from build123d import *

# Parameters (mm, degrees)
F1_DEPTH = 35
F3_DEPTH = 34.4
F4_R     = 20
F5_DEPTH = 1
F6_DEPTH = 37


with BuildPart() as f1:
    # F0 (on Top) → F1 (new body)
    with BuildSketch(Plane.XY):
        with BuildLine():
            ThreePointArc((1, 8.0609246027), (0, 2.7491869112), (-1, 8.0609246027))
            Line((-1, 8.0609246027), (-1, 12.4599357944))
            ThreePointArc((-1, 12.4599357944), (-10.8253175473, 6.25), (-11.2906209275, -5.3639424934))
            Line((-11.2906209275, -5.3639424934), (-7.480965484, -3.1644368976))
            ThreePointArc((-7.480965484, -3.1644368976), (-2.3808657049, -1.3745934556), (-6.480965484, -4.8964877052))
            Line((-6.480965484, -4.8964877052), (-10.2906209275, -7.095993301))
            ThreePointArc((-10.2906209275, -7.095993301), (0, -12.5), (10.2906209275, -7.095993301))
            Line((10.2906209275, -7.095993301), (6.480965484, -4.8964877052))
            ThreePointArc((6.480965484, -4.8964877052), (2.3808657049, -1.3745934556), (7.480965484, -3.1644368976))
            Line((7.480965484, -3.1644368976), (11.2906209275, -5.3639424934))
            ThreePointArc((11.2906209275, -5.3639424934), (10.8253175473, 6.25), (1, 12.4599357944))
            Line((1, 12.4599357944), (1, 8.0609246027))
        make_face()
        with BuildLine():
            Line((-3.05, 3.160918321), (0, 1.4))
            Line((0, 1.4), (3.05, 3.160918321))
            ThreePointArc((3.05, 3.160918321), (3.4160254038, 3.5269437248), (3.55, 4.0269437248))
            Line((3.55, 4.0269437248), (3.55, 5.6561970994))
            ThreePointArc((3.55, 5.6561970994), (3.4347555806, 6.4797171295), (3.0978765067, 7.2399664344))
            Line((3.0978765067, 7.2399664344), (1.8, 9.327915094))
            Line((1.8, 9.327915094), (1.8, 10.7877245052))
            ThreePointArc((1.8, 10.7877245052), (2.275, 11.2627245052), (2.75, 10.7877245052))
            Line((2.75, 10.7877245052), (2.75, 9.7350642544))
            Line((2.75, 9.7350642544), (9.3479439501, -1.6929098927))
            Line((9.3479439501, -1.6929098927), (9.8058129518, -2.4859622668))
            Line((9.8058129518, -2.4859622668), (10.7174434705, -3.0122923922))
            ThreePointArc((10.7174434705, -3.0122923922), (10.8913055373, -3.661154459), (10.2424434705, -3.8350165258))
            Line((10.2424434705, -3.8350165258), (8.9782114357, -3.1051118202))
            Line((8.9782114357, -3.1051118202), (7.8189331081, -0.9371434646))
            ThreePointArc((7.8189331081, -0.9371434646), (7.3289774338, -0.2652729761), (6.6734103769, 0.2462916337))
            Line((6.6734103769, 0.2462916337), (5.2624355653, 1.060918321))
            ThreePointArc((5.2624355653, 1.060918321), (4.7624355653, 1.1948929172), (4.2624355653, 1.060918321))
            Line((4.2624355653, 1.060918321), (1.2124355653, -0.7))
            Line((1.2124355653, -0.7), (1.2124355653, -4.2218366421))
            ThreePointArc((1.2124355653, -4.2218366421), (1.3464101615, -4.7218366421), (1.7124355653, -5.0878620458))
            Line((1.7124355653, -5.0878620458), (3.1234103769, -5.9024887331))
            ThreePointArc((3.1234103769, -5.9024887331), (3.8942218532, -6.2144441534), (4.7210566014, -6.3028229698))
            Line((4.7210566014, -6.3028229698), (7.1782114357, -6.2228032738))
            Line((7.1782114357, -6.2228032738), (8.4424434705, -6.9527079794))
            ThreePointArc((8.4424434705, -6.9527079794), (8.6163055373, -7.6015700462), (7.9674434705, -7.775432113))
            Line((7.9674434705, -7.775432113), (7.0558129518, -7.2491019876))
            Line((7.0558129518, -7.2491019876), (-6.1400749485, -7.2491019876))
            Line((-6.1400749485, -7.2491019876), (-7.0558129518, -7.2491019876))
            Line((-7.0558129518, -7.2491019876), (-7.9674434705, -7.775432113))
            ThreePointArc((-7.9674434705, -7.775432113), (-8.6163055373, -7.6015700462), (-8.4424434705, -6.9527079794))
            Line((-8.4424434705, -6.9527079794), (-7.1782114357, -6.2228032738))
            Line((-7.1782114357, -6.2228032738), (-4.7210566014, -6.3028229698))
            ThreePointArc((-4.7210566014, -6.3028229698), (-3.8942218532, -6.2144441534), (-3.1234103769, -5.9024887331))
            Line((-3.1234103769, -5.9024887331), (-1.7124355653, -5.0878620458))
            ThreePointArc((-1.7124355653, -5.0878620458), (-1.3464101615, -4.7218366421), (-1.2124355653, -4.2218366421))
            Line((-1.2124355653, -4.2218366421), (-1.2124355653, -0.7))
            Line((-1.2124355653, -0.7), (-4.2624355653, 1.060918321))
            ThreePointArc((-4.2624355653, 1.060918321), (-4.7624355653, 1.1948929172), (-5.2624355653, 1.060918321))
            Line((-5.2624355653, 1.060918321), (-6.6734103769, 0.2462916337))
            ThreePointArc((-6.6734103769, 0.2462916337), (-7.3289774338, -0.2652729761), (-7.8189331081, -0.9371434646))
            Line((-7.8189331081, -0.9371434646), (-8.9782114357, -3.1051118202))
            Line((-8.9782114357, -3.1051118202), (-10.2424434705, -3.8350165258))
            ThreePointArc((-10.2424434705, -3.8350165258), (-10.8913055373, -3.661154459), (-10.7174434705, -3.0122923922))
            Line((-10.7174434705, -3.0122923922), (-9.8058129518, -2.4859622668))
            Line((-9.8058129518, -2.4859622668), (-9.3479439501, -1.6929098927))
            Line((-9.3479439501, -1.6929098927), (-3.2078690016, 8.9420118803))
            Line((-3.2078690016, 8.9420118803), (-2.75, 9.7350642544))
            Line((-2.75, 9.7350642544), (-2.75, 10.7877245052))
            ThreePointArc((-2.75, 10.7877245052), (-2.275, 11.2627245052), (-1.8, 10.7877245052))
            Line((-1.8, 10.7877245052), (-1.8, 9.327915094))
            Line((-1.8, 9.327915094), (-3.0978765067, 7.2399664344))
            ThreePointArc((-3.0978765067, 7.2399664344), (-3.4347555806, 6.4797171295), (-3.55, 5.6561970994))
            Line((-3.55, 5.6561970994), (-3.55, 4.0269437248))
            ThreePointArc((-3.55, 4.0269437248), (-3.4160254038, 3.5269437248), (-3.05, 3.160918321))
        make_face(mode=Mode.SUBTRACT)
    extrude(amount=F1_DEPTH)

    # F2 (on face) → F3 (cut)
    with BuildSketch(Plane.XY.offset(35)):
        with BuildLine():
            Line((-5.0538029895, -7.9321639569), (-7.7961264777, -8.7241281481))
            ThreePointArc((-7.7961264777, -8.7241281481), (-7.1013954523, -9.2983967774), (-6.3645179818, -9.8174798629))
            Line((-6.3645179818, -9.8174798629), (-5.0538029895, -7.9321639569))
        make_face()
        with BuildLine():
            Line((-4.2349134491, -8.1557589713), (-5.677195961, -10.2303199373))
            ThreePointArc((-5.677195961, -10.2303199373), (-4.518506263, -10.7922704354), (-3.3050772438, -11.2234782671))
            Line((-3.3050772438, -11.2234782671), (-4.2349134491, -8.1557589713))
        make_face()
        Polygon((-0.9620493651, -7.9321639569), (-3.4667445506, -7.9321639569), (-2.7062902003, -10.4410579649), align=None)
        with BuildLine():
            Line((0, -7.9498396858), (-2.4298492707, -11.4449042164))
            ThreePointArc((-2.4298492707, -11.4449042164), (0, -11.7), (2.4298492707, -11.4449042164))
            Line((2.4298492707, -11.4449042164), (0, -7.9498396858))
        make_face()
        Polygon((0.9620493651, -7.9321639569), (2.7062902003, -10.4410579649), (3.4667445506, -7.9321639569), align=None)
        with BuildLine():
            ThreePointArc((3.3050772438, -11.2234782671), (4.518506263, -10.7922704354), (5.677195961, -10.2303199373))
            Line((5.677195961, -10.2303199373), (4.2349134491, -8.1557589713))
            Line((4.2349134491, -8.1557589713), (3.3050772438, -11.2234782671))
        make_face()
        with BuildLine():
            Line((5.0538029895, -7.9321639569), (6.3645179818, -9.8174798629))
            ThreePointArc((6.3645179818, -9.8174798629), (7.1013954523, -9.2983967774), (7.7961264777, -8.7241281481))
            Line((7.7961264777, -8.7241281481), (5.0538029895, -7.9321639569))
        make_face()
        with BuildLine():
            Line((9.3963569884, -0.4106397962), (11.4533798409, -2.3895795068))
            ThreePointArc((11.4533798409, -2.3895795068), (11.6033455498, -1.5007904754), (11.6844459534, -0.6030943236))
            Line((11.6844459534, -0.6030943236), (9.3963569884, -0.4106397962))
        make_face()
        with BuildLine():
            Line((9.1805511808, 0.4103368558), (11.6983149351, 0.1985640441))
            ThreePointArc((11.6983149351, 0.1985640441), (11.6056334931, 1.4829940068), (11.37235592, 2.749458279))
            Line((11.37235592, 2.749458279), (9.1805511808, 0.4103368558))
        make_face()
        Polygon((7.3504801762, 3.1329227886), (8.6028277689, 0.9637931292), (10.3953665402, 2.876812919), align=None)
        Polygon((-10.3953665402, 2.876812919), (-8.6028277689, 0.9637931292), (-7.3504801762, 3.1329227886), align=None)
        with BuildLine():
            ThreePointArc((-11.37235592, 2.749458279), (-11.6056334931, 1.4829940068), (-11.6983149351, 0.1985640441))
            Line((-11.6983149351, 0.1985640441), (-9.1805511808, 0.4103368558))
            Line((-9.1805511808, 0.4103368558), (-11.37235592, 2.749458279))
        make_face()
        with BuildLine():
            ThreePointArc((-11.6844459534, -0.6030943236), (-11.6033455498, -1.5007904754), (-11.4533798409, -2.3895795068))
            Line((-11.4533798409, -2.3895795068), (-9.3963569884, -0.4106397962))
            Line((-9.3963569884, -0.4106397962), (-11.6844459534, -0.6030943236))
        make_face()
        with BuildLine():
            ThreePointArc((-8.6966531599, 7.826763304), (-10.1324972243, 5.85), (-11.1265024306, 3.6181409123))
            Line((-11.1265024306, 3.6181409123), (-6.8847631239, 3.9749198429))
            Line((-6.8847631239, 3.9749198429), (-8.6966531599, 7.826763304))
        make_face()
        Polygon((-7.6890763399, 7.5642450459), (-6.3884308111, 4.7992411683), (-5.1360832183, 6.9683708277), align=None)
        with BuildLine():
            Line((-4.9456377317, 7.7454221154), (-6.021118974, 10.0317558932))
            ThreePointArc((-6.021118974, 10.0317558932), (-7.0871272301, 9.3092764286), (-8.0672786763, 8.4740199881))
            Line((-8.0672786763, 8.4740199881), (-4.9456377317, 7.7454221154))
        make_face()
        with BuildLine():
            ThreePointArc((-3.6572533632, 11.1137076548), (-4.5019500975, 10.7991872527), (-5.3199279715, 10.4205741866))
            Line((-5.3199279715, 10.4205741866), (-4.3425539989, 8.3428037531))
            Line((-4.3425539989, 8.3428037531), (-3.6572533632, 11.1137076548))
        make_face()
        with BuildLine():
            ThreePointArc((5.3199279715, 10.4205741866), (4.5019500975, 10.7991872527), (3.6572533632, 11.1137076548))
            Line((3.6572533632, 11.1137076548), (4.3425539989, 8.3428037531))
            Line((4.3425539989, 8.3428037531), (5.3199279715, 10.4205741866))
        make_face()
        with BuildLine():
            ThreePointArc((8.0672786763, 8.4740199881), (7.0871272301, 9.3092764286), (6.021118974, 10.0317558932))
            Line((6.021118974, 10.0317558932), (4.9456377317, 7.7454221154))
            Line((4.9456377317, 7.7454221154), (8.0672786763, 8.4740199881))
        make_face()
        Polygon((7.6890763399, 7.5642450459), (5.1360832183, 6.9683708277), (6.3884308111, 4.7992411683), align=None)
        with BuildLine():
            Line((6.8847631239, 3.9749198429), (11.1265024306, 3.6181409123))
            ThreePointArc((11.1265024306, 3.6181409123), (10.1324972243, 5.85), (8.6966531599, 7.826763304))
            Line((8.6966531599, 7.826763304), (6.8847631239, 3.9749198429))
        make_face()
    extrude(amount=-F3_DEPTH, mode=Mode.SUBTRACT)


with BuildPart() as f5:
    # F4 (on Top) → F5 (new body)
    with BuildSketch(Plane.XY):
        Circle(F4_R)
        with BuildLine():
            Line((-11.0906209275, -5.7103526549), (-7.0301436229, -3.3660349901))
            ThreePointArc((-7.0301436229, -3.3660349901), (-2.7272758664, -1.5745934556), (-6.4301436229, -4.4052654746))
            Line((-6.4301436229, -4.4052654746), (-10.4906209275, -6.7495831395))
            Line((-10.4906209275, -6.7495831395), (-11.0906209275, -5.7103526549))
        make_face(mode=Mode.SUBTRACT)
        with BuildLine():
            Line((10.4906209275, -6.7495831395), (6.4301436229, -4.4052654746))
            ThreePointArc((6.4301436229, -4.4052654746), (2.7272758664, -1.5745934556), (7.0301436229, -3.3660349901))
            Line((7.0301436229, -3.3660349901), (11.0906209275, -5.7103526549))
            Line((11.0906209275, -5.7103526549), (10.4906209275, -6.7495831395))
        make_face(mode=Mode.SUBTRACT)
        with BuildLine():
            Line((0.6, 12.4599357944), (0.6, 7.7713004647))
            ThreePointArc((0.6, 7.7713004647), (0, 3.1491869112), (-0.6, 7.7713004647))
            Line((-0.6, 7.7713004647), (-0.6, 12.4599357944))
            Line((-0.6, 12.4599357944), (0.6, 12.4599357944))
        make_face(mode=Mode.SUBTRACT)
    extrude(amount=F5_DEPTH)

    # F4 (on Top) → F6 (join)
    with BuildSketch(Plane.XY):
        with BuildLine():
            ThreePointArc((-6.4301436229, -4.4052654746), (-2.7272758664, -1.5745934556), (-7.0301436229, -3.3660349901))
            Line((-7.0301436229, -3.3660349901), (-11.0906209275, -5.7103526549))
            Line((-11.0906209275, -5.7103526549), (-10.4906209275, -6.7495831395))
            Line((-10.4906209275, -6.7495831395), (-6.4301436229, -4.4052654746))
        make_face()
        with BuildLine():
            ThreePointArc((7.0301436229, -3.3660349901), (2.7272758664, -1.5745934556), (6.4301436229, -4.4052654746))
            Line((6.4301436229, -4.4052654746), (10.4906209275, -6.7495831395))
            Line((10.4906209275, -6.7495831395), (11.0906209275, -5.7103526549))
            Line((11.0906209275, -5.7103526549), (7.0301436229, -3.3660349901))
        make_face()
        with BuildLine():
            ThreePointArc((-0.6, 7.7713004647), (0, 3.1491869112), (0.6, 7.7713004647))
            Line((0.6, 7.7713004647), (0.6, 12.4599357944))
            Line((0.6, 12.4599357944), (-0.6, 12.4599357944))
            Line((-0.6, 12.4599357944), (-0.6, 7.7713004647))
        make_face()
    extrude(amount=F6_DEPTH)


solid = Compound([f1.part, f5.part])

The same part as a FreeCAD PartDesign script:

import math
import FreeCAD as App
import Part
import Sketcher
from FreeCAD import Vector
Q = App.Units.Quantity


def add_polygon(sketch, points):
    """Adds a closed chain of lines whose ends are joined by coincident constraints."""
    first, n = sketch.GeometryCount, len(points)
    for a, b in zip(points, points[1:] + points[:1]):
        sketch.addGeometry(Part.LineSegment(App.Vector(*a, 0), App.Vector(*b, 0)), False)
    for i in range(n):
        sketch.addConstraint(Sketcher.Constraint("Coincident", first + i, 2, first + (i + 1) % n, 1))

doc = App.newDocument("Part")
body = doc.addObject("PartDesign::Body", "Body")

# Sketch on XY plane
sketch1 = body.newObject("Sketcher::SketchObject", "Sketch")
sketch1.AttachmentSupport = (doc.getObject("XY_Plane"), [""])
sketch1.MapMode = "FlatFace"
sketch1.addGeometry([
    Part.ArcOfCircle(Part.Circle(Vector(0, 5.499187, 0), Vector(0, 0, 1), 2.75), math.radians(111.323686), math.radians(428.676314)),  # 0
    Part.LineSegment(Vector(-1, 8.060925, 0), Vector(-1, 12.459936, 0)),  # 1
    Part.ArcOfCircle(Part.Circle(Vector(0, 0, 0), Vector(0, 0, 1), 12.5), math.radians(94.588566), math.radians(205.411434)),  # 2
    Part.LineSegment(Vector(-11.290621, -5.363942, 0), Vector(-7.480965, -3.164437, 0)),  # 3
    Part.ArcOfCircle(Part.Circle(Vector(-4.762436, -2.749593, 0), Vector(0, 0, 1), 2.75), math.radians(-128.676314), math.radians(188.676314)),  # 4
    Part.LineSegment(Vector(-6.480965, -4.896488, 0), Vector(-10.290621, -7.095993, 0)),  # 5
    Part.ArcOfCircle(Part.Circle(Vector(0, 0, 0), Vector(0, 0, 1), 12.5), math.radians(-145.411434), math.radians(-34.588566)),  # 6
    Part.LineSegment(Vector(10.290621, -7.095993, 0), Vector(6.480965, -4.896488, 0)),  # 7
    Part.ArcOfCircle(Part.Circle(Vector(4.762436, -2.749593, 0), Vector(0, 0, 1), 2.75), math.radians(-8.676314), math.radians(308.676314)),  # 8
    Part.LineSegment(Vector(7.480965, -3.164437, 0), Vector(11.290621, -5.363942, 0)),  # 9
    Part.ArcOfCircle(Part.Circle(Vector(0, 0, 0), Vector(0, 0, 1), 12.5), math.radians(-25.411434), math.radians(85.411434)),  # 10
    Part.LineSegment(Vector(1, 12.459936, 0), Vector(1, 8.060925, 0)),  # 11
    Part.ArcOfCircle(Part.Circle(Vector(-2.55, 4.026944, 0), Vector(0, 0, 1), 1), math.radians(180), math.radians(240)),  # 12
    Part.LineSegment(Vector(-3.05, 3.160918, 0), Vector(0, 1.4, 0)),  # 13
    Part.LineSegment(Vector(0, 1.4, 0), Vector(3.05, 3.160918, 0)),  # 14
    Part.ArcOfCircle(Part.Circle(Vector(2.55, 4.026944, 0), Vector(0, 0, 1), 1), math.radians(-60), math.radians(0)),  # 15
    Part.LineSegment(Vector(3.55, 4.026944, 0), Vector(3.55, 5.656197, 0)),  # 16
    Part.ArcOfCircle(Part.Circle(Vector(0.55, 5.656197, 0), Vector(0, 0, 1), 3), math.radians(0), math.radians(31.865235)),  # 17
    Part.LineSegment(Vector(3.097877, 7.239966, 0), Vector(1.8, 9.327915, 0)),  # 18
    Part.LineSegment(Vector(1.8, 9.327915, 0), Vector(1.8, 10.787725, 0)),  # 19
    Part.ArcOfCircle(Part.Circle(Vector(2.275, 10.787725, 0), Vector(0, 0, 1), 0.475), math.radians(0), math.radians(180)),  # 20
    Part.LineSegment(Vector(2.75, 10.787725, 0), Vector(2.75, 9.735064, 0)),  # 21
    Part.LineSegment(Vector(2.75, 9.735064, 0), Vector(9.347944, -1.69291, 0)),  # 22
    Part.LineSegment(Vector(9.347944, -1.69291, 0), Vector(9.805813, -2.485962, 0)),  # 23
    Part.LineSegment(Vector(9.805813, -2.485962, 0), Vector(10.717443, -3.012292, 0)),  # 24
    Part.ArcOfCircle(Part.Circle(Vector(10.479943, -3.423654, 0), Vector(0, 0, 1), 0.475), math.radians(-120), math.radians(60)),  # 25
    Part.LineSegment(Vector(10.242443, -3.835017, 0), Vector(8.978211, -3.105112, 0)),  # 26
    Part.LineSegment(Vector(8.978211, -3.105112, 0), Vector(7.818933, -0.937143, 0)),  # 27
    Part.ArcOfCircle(Part.Circle(Vector(5.17341, -2.351785, 0), Vector(0, 0, 1), 3), math.radians(28.134765), math.radians(60)),  # 28
    Part.LineSegment(Vector(6.67341, 0.246292, 0), Vector(5.262436, 1.060918, 0)),  # 29
    Part.ArcOfCircle(Part.Circle(Vector(4.762436, 0.194893, 0), Vector(0, 0, 1), 1), math.radians(60), math.radians(120)),  # 30
    Part.LineSegment(Vector(4.262436, 1.060918, 0), Vector(1.212436, -0.7, 0)),  # 31
    Part.LineSegment(Vector(1.212436, -0.7, 0), Vector(1.212436, -4.221837, 0)),  # 32
    Part.ArcOfCircle(Part.Circle(Vector(2.212436, -4.221837, 0), Vector(0, 0, 1), 1), math.radians(180), math.radians(240)),  # 33
    Part.LineSegment(Vector(1.712436, -5.087862, 0), Vector(3.12341, -5.902489, 0)),  # 34
    Part.ArcOfCircle(Part.Circle(Vector(4.62341, -3.304413, 0), Vector(0, 0, 1), 3), math.radians(-120), math.radians(-88.134765)),  # 35
    Part.LineSegment(Vector(4.721057, -6.302823, 0), Vector(7.178211, -6.222803, 0)),  # 36
    Part.LineSegment(Vector(7.178211, -6.222803, 0), Vector(8.442443, -6.952708, 0)),  # 37
    Part.ArcOfCircle(Part.Circle(Vector(8.204943, -7.36407, 0), Vector(0, 0, 1), 0.475), math.radians(-120), math.radians(60)),  # 38
    Part.LineSegment(Vector(7.967443, -7.775432, 0), Vector(7.055813, -7.249102, 0)),  # 39
    Part.LineSegment(Vector(7.055813, -7.249102, 0), Vector(-7.055813, -7.249102, 0)),  # 40
    Part.LineSegment(Vector(-7.055813, -7.249102, 0), Vector(-7.967443, -7.775432, 0)),  # 41
    Part.ArcOfCircle(Part.Circle(Vector(-8.204943, -7.36407, 0), Vector(0, 0, 1), 0.475), math.radians(120), math.radians(300)),  # 42
    Part.LineSegment(Vector(-8.442443, -6.952708, 0), Vector(-7.178211, -6.222803, 0)),  # 43
    Part.LineSegment(Vector(-7.178211, -6.222803, 0), Vector(-4.721057, -6.302823, 0)),  # 44
    Part.ArcOfCircle(Part.Circle(Vector(-4.62341, -3.304413, 0), Vector(0, 0, 1), 3), math.radians(-91.865235), math.radians(-60)),  # 45
    Part.LineSegment(Vector(-3.12341, -5.902489, 0), Vector(-1.712436, -5.087862, 0)),  # 46
    Part.ArcOfCircle(Part.Circle(Vector(-2.212436, -4.221837, 0), Vector(0, 0, 1), 1), math.radians(-60), math.radians(0)),  # 47
    Part.LineSegment(Vector(-1.212436, -4.221837, 0), Vector(-1.212436, -0.7, 0)),  # 48
    Part.LineSegment(Vector(-1.212436, -0.7, 0), Vector(-4.262436, 1.060918, 0)),  # 49
    Part.ArcOfCircle(Part.Circle(Vector(-4.762436, 0.194893, 0), Vector(0, 0, 1), 1), math.radians(60), math.radians(120)),  # 50
    Part.LineSegment(Vector(-5.262436, 1.060918, 0), Vector(-6.67341, 0.246292, 0)),  # 51
    Part.ArcOfCircle(Part.Circle(Vector(-5.17341, -2.351785, 0), Vector(0, 0, 1), 3), math.radians(120), math.radians(151.865235)),  # 52
    Part.LineSegment(Vector(-7.818933, -0.937143, 0), Vector(-8.978211, -3.105112, 0)),  # 53
    Part.LineSegment(Vector(-8.978211, -3.105112, 0), Vector(-10.242443, -3.835017, 0)),  # 54
    Part.ArcOfCircle(Part.Circle(Vector(-10.479943, -3.423654, 0), Vector(0, 0, 1), 0.475), math.radians(120), math.radians(300)),  # 55
    Part.LineSegment(Vector(-10.717443, -3.012292, 0), Vector(-9.805813, -2.485962, 0)),  # 56
    Part.LineSegment(Vector(-9.805813, -2.485962, 0), Vector(-9.347944, -1.69291, 0)),  # 57
    Part.LineSegment(Vector(-9.347944, -1.69291, 0), Vector(-3.207869, 8.942012, 0)),  # 58
    Part.LineSegment(Vector(-3.207869, 8.942012, 0), Vector(-2.75, 9.735064, 0)),  # 59
    Part.LineSegment(Vector(-2.75, 9.735064, 0), Vector(-2.75, 10.787725, 0)),  # 60
    Part.ArcOfCircle(Part.Circle(Vector(-2.275, 10.787725, 0), Vector(0, 0, 1), 0.475), math.radians(0), math.radians(180)),  # 61
    Part.LineSegment(Vector(-1.8, 10.787725, 0), Vector(-1.8, 9.327915, 0)),  # 62
    Part.LineSegment(Vector(-1.8, 9.327915, 0), Vector(-3.097877, 7.239966, 0)),  # 63
    Part.ArcOfCircle(Part.Circle(Vector(-0.55, 5.656197, 0), Vector(0, 0, 1), 3), math.radians(148.134765), math.radians(180)),  # 64
    Part.LineSegment(Vector(-3.55, 5.656197, 0), Vector(-3.55, 4.026944, 0)),  # 65
], False)
sketch1.addConstraint([
    Sketcher.Constraint("Coincident", 0, 1, 1, 1),
    Sketcher.Constraint("Coincident", 1, 2, 2, 1),
    Sketcher.Constraint("Coincident", 2, 2, 3, 1),
    Sketcher.Constraint("Coincident", 3, 2, 4, 2),
    Sketcher.Constraint("Coincident", 4, 1, 5, 1),
    Sketcher.Constraint("Coincident", 5, 2, 6, 1),
    Sketcher.Constraint("Coincident", 6, 2, 7, 1),
    Sketcher.Constraint("Coincident", 7, 2, 8, 2),
    Sketcher.Constraint("Coincident", 8, 1, 9, 1),
    Sketcher.Constraint("Coincident", 9, 2, 10, 1),
    Sketcher.Constraint("Coincident", 10, 2, 11, 1),
    Sketcher.Constraint("Coincident", 11, 2, 0, 2),
    Sketcher.Constraint("Tangent", 12, 2, 13, 1),
    Sketcher.Constraint("Coincident", 13, 2, 14, 1),
    Sketcher.Constraint("Tangent", 14, 2, 15, 1),
    Sketcher.Constraint("Tangent", 15, 2, 16, 1),
    Sketcher.Constraint("Tangent", 16, 2, 17, 1),
    Sketcher.Constraint("Tangent", 17, 2, 18, 1),
    Sketcher.Constraint("Coincident", 18, 2, 19, 1),
    Sketcher.Constraint("Tangent", 19, 2, 20, 2),
    Sketcher.Constraint("Tangent", 20, 1, 21, 1),
    Sketcher.Constraint("Coincident", 21, 2, 22, 1),
    Sketcher.Constraint("Coincident", 22, 2, 23, 1),
    Sketcher.Constraint("Coincident", 23, 2, 24, 1),
    Sketcher.Constraint("Tangent", 24, 2, 25, 2),
    Sketcher.Constraint("Tangent", 25, 1, 26, 1),
    Sketcher.Constraint("Coincident", 26, 2, 27, 1),
    Sketcher.Constraint("Tangent", 27, 2, 28, 1),
    Sketcher.Constraint("Tangent", 28, 2, 29, 1),
    Sketcher.Constraint("Tangent", 29, 2, 30, 1),
    Sketcher.Constraint("Tangent", 30, 2, 31, 1),
    Sketcher.Constraint("Coincident", 31, 2, 32, 1),
    Sketcher.Constraint("Tangent", 32, 2, 33, 1),
    Sketcher.Constraint("Tangent", 33, 2, 34, 1),
    Sketcher.Constraint("Tangent", 34, 2, 35, 1),
    Sketcher.Constraint("Tangent", 35, 2, 36, 1),
    Sketcher.Constraint("Coincident", 36, 2, 37, 1),
    Sketcher.Constraint("Tangent", 37, 2, 38, 2),
    Sketcher.Constraint("Tangent", 38, 1, 39, 1),
    Sketcher.Constraint("Coincident", 39, 2, 40, 1),
    Sketcher.Constraint("Coincident", 40, 2, 41, 1),
    Sketcher.Constraint("Tangent", 41, 2, 42, 2),
    Sketcher.Constraint("Tangent", 42, 1, 43, 1),
    Sketcher.Constraint("Coincident", 43, 2, 44, 1),
    Sketcher.Constraint("Tangent", 44, 2, 45, 1),
    Sketcher.Constraint("Tangent", 45, 2, 46, 1),
    Sketcher.Constraint("Tangent", 46, 2, 47, 1),
    Sketcher.Constraint("Tangent", 47, 2, 48, 1),
    Sketcher.Constraint("Coincident", 48, 2, 49, 1),
    Sketcher.Constraint("Tangent", 49, 2, 50, 1),
    Sketcher.Constraint("Tangent", 50, 2, 51, 1),
    Sketcher.Constraint("Tangent", 51, 2, 52, 1),
    Sketcher.Constraint("Tangent", 52, 2, 53, 1),
    Sketcher.Constraint("Coincident", 53, 2, 54, 1),
    Sketcher.Constraint("Tangent", 54, 2, 55, 2),
    Sketcher.Constraint("Tangent", 55, 1, 56, 1),
    Sketcher.Constraint("Coincident", 56, 2, 57, 1),
    Sketcher.Constraint("Coincident", 57, 2, 58, 1),
    Sketcher.Constraint("Coincident", 58, 2, 59, 1),
    Sketcher.Constraint("Coincident", 59, 2, 60, 1),
    Sketcher.Constraint("Tangent", 60, 2, 61, 2),
    Sketcher.Constraint("Tangent", 61, 1, 62, 1),
    Sketcher.Constraint("Coincident", 62, 2, 63, 1),
    Sketcher.Constraint("Tangent", 63, 2, 64, 1),
    Sketcher.Constraint("Tangent", 64, 2, 65, 1),
    Sketcher.Constraint("Tangent", 65, 2, 12, 1),
    Sketcher.Constraint("Vertical", 1),
    Sketcher.Constraint("Vertical", 11),
    Sketcher.Constraint("Vertical", 16),
    Sketcher.Constraint("Vertical", 19),
    Sketcher.Constraint("Vertical", 21),
    Sketcher.Constraint("Vertical", 32),
    Sketcher.Constraint("Horizontal", 40),
    Sketcher.Constraint("Vertical", 48),
    Sketcher.Constraint("Vertical", 60),
    Sketcher.Constraint("Vertical", 62),
    Sketcher.Constraint("Vertical", 65),
    Sketcher.Constraint("Coincident", 2, 3, -1, 1),
    Sketcher.Constraint("Coincident", 6, 3, -1, 1),
    Sketcher.Constraint("Coincident", 10, 3, -1, 1),
    Sketcher.Constraint("Equal", 0, 4),
    Sketcher.Constraint("Equal", 2, 6),
    Sketcher.Constraint("Equal", 4, 8),
    Sketcher.Constraint("Equal", 6, 10),
    Sketcher.Constraint("Equal", 12, 15),
    Sketcher.Constraint("Equal", 20, 25),
    Sketcher.Constraint("Equal", 17, 28),
    Sketcher.Constraint("Equal", 15, 30),
    Sketcher.Constraint("Equal", 30, 33),
    Sketcher.Constraint("Equal", 28, 35),
    Sketcher.Constraint("Equal", 25, 38),
    Sketcher.Constraint("Equal", 38, 42),
    Sketcher.Constraint("Equal", 35, 45),
    Sketcher.Constraint("Equal", 33, 47),
    Sketcher.Constraint("Equal", 47, 50),
    Sketcher.Constraint("Equal", 45, 52),
    Sketcher.Constraint("Equal", 42, 55),
    Sketcher.Constraint("Equal", 55, 61),
    Sketcher.Constraint("Equal", 52, 64),
    Sketcher.Constraint("Symmetric", 4, 3, 8, 3, -2),
    Sketcher.Constraint("Symmetric", 12, 3, 15, 3, -2),
    Sketcher.Constraint("Symmetric", 38, 3, 42, 3, -2),
    Sketcher.Constraint("Symmetric", 35, 3, 45, 3, -2),
    Sketcher.Constraint("Symmetric", 33, 3, 47, 3, -2),
    Sketcher.Constraint("Symmetric", 30, 3, 50, 3, -2),
    Sketcher.Constraint("Symmetric", 28, 3, 52, 3, -2),
    Sketcher.Constraint("Symmetric", 25, 3, 55, 3, -2),
    Sketcher.Constraint("Symmetric", 20, 3, 61, 3, -2),
    Sketcher.Constraint("Symmetric", 0, 1, 11, 2, -2),
    Sketcher.Constraint("Symmetric", 36, 2, 43, 2, -2),
    Sketcher.Constraint("Symmetric", 26, 2, 53, 2, -2),
    Sketcher.Constraint("Symmetric", 23, 2, 56, 2, -2),
    Sketcher.Constraint("Symmetric", 22, 2, 57, 2, -2),
    Sketcher.Constraint("Symmetric", 17, 2, 63, 2, -2),
    Sketcher.Constraint("PointOnObject", 13, 2, -2),
    Sketcher.Constraint("Parallel", 3, 5),
    Sketcher.Constraint("Parallel", 7, 9),
    Sketcher.Constraint("Parallel", 9, 13),
    Sketcher.Constraint("Parallel", 5, 14),
    Sketcher.Constraint("Perpendicular", 14, 22),
    Sketcher.Constraint("Parallel", 22, 23),
    Sketcher.Constraint("Parallel", 13, 24),
    Sketcher.Constraint("Parallel", 24, 26),
    Sketcher.Constraint("Parallel", 26, 29),
    Sketcher.Constraint("Perpendicular", 23, 31),
    Sketcher.Constraint("Parallel", 29, 34),
    Sketcher.Constraint("Parallel", 34, 37),
    Sketcher.Constraint("Parallel", 37, 39),
    Sketcher.Constraint("Parallel", 31, 41),
    Sketcher.Constraint("Parallel", 39, 49),
    Sketcher.Constraint("Parallel", 57, 58),
    Sketcher.Constraint("Parallel", 58, 59),
    Sketcher.Constraint("Horizontal", 5, 2, 6, 2),
    Sketcher.Constraint("Horizontal", 3, 2, 8, 1),
    Sketcher.Constraint("Vertical", 8, 3, 30, 3),
    Sketcher.Constraint("Equal", 3, 5),
    Sketcher.Constraint("Equal", 18, 27),
    Sketcher.Constraint("Equal", 14, 31),
    Sketcher.Constraint("Equal", 29, 34),
    Sketcher.Constraint("Equal", 27, 36),
    Sketcher.Constraint("Equal", 26, 37),
    Sketcher.Constraint("Equal", 24, 39),
    Sketcher.Constraint("Equal", 57, 59),
    Sketcher.Constraint("Radius", 12, Q("1 mm")),
    Sketcher.Constraint("Radius", 17, Q("3 mm")),
    Sketcher.Constraint("Radius", 2, Q("12.5 mm")),
    Sketcher.Constraint("Angle", 3, Q("30 deg")),
    Sketcher.Constraint("Radius", 0, Q("2.75 mm")),
    Sketcher.Constraint("DistanceX", 0, 1, -1, 1, Q("1 mm")),
    Sketcher.Constraint("Radius", 20, Q("0.475 mm")),
    Sketcher.Constraint("DistanceY", -1, 1, 13, 2, Q("1.4 mm")),
    Sketcher.Constraint("DistanceX", -1, 1, 18, 2, Q("1.8 mm")),
    Sketcher.Constraint("DistanceY", 31, 2, -1, 1, Q("0.7 mm")),
    Sketcher.Constraint("DistanceX", 12, 3, -1, 1, Q("2.55 mm")),
    Sketcher.Constraint("DistanceY", 1, 1, 1, 2, Q("4.399011 mm")),
    Sketcher.Constraint("DistanceY", 19, 1, 19, 2, Q("1.459809 mm")),
    Sketcher.Constraint("DistanceY", 21, 2, 21, 1, Q("1.05266 mm")),
    Sketcher.Constraint("DistanceY", 39, 2, -1, 1, Q("7.249102 mm")),
    Sketcher.Constraint("Distance", 3, Q("4.399011 mm")),
    Sketcher.Constraint("Distance", 23, Q("0.915738 mm")),
    Sketcher.Constraint("Distance", 24, Q("1.05266 mm")),
    Sketcher.Constraint("Distance", 26, Q("1.459809 mm")),
    Sketcher.Constraint("Distance", 58, Q("12.28015 mm")),
    Sketcher.Constraint("DistanceX", 40, 2, 40, 1, Q("14.111626 mm")),
    Sketcher.Constraint("DistanceY", 16, 1, 16, 2, Q("1.629253 mm")),
    Sketcher.Constraint("DistanceY", 32, 2, 32, 1, Q("3.521837 mm")),
    Sketcher.Constraint("DistanceX", -1, 1, 28, 3, Q("5.17341 mm")),
    Sketcher.Constraint("DistanceX", 2, 2, -1, 1, Q("11.290621 mm")),
])
pad1 = body.newObject("PartDesign::Pad", "Pad")
pad1.Profile = sketch1
pad1.Length = 35

# Sketch on XY plane
sketch2 = body.newObject("Sketcher::SketchObject", "Sketch001")
sketch2.AttachmentSupport = (doc.getObject("XY_Plane"), [""])
sketch2.MapMode = "FlatFace"
sketch2.AttachmentOffset = App.Placement(Vector(0, 0, 35), App.Rotation())
sketch2.addGeometry(Part.LineSegment(Vector(-5.053803, -7.932164, 0), Vector(-7.796126, -8.724128, 0)), False)  # 0
sketch2.addGeometry(Part.ArcOfCircle(Part.Circle(Vector(0, 0, 0), Vector(0, 0, 1), 11.7), math.radians(-131.78487), math.radians(-122.954708)), False)  # 1
sketch2.addGeometry(Part.LineSegment(Vector(-6.364518, -9.81748, 0), Vector(-5.053803, -7.932164, 0)), False)  # 2
sketch2.addGeometry(Part.LineSegment(Vector(-4.234913, -8.155759, 0), Vector(-5.677196, -10.23032, 0)), False)  # 3
sketch2.addGeometry(Part.ArcOfCircle(Part.Circle(Vector(0, 0, 0), Vector(0, 0, 1), 11.7), math.radians(-119.02757), math.radians(-106.408587)), False)  # 4
sketch2.addGeometry(Part.LineSegment(Vector(-3.305077, -11.223478, 0), Vector(-4.234913, -8.155759, 0)), False)  # 5
add_polygon(sketch2, [(-0.962049, -7.932164), (-3.466745, -7.932164), (-2.70629, -10.441058)])  # lines 6-8
sketch2.addGeometry(Part.LineSegment(Vector(0, -7.94984, 0), Vector(-2.429849, -11.444904, 0)), False)  # 9
sketch2.addGeometry(Part.ArcOfCircle(Part.Circle(Vector(0, 0, 0), Vector(0, 0, 1), 11.7), math.radians(-101.986395), math.radians(-78.013605)), False)  # 10
sketch2.addGeometry(Part.LineSegment(Vector(2.429849, -11.444904, 0), Vector(0, -7.94984, 0)), False)  # 11
add_polygon(sketch2, [(0.962049, -7.932164), (2.70629, -10.441058), (3.466745, -7.932164)])  # lines 12-14
sketch2.addGeometry(Part.ArcOfCircle(Part.Circle(Vector(0, 0, 0), Vector(0, 0, 1), 11.7), math.radians(-73.591413), math.radians(-60.97243)), False)  # 15
sketch2.addGeometry(Part.LineSegment(Vector(5.677196, -10.23032, 0), Vector(4.234913, -8.155759, 0)), False)  # 16
sketch2.addGeometry(Part.LineSegment(Vector(4.234913, -8.155759, 0), Vector(3.305077, -11.223478, 0)), False)  # 17
sketch2.addGeometry(Part.LineSegment(Vector(5.053803, -7.932164, 0), Vector(6.364518, -9.81748, 0)), False)  # 18
sketch2.addGeometry(Part.ArcOfCircle(Part.Circle(Vector(0, 0, 0), Vector(0, 0, 1), 11.7), math.radians(-57.045292), math.radians(-48.21513)), False)  # 19
sketch2.addGeometry(Part.LineSegment(Vector(7.796126, -8.724128, 0), Vector(5.053803, -7.932164, 0)), False)  # 20
sketch2.addGeometry(Part.LineSegment(Vector(9.396357, -0.41064, 0), Vector(11.45338, -2.38958, 0)), False)  # 21
sketch2.addGeometry(Part.ArcOfCircle(Part.Circle(Vector(0, 0, 0), Vector(0, 0, 1), 11.7), math.radians(-11.78487), math.radians(-2.954708)), False)  # 22
sketch2.addGeometry(Part.LineSegment(Vector(11.684446, -0.603094, 0), Vector(9.396357, -0.41064, 0)), False)  # 23
sketch2.addGeometry(Part.LineSegment(Vector(9.180551, 0.410337, 0), Vector(11.698315, 0.198564, 0)), False)  # 24
sketch2.addGeometry(Part.ArcOfCircle(Part.Circle(Vector(0, 0, 0), Vector(0, 0, 1), 11.7), math.radians(0.97243), math.radians(13.591413)), False)  # 25
sketch2.addGeometry(Part.LineSegment(Vector(11.372356, 2.749458, 0), Vector(9.180551, 0.410337, 0)), False)  # 26
add_polygon(sketch2, [(7.35048, 3.132923), (8.602828, 0.963793), (10.395367, 2.876813)])  # lines 27-29
add_polygon(sketch2, [(-10.395367, 2.876813), (-8.602828, 0.963793), (-7.35048, 3.132923)])  # lines 30-32
sketch2.addGeometry(Part.ArcOfCircle(Part.Circle(Vector(0, 0, 0), Vector(0, 0, 1), 11.7), math.radians(166.408587), math.radians(179.02757)), False)  # 33
sketch2.addGeometry(Part.LineSegment(Vector(-11.698315, 0.198564, 0), Vector(-9.180551, 0.410337, 0)), False)  # 34
sketch2.addGeometry(Part.LineSegment(Vector(-9.180551, 0.410337, 0), Vector(-11.372356, 2.749458, 0)), False)  # 35
sketch2.addGeometry(Part.ArcOfCircle(Part.Circle(Vector(0, 0, 0), Vector(0, 0, 1), 11.7), math.radians(-177.045292), math.radians(-168.21513)), False)  # 36
sketch2.addGeometry(Part.LineSegment(Vector(-11.45338, -2.38958, 0), Vector(-9.396357, -0.41064, 0)), False)  # 37
sketch2.addGeometry(Part.LineSegment(Vector(-9.396357, -0.41064, 0), Vector(-11.684446, -0.603094, 0)), False)  # 38
sketch2.addGeometry(Part.ArcOfCircle(Part.Circle(Vector(0, 0, 0), Vector(0, 0, 1), 11.7), math.radians(138.013605), math.radians(161.986395)), False)  # 39
sketch2.addGeometry(Part.LineSegment(Vector(-11.126502, 3.618141, 0), Vector(-6.884763, 3.97492, 0)), False)  # 40
sketch2.addGeometry(Part.LineSegment(Vector(-6.884763, 3.97492, 0), Vector(-8.696653, 7.826763, 0)), False)  # 41
add_polygon(sketch2, [(-7.689076, 7.564245), (-6.388431, 4.799241), (-5.136083, 6.968371)])  # lines 42-44
sketch2.addGeometry(Part.LineSegment(Vector(-4.945638, 7.745422, 0), Vector(-6.021119, 10.031756, 0)), False)  # 45
sketch2.addGeometry(Part.ArcOfCircle(Part.Circle(Vector(0, 0, 0), Vector(0, 0, 1), 11.7), math.radians(120.97243), math.radians(133.591413)), False)  # 46
sketch2.addGeometry(Part.LineSegment(Vector(-8.067279, 8.47402, 0), Vector(-4.945638, 7.745422, 0)), False)  # 47
sketch2.addGeometry(Part.ArcOfCircle(Part.Circle(Vector(0, 0, 0), Vector(0, 0, 1), 11.7), math.radians(108.21513), math.radians(117.045292)), False)  # 48
sketch2.addGeometry(Part.LineSegment(Vector(-5.319928, 10.420574, 0), Vector(-4.342554, 8.342804, 0)), False)  # 49
sketch2.addGeometry(Part.LineSegment(Vector(-4.342554, 8.342804, 0), Vector(-3.657253, 11.113708, 0)), False)  # 50
sketch2.addGeometry(Part.ArcOfCircle(Part.Circle(Vector(0, 0, 0), Vector(0, 0, 1), 11.7), math.radians(62.954708), math.radians(71.78487)), False)  # 51
sketch2.addGeometry(Part.LineSegment(Vector(3.657253, 11.113708, 0), Vector(4.342554, 8.342804, 0)), False)  # 52
sketch2.addGeometry(Part.LineSegment(Vector(4.342554, 8.342804, 0), Vector(5.319928, 10.420574, 0)), False)  # 53
sketch2.addGeometry(Part.ArcOfCircle(Part.Circle(Vector(0, 0, 0), Vector(0, 0, 1), 11.7), math.radians(46.408587), math.radians(59.02757)), False)  # 54
sketch2.addGeometry(Part.LineSegment(Vector(6.021119, 10.031756, 0), Vector(4.945638, 7.745422, 0)), False)  # 55
sketch2.addGeometry(Part.LineSegment(Vector(4.945638, 7.745422, 0), Vector(8.067279, 8.47402, 0)), False)  # 56
add_polygon(sketch2, [(7.689076, 7.564245), (5.136083, 6.968371), (6.388431, 4.799241)])  # lines 57-59
sketch2.addGeometry(Part.LineSegment(Vector(6.884763, 3.97492, 0), Vector(11.126502, 3.618141, 0)), False)  # 60
sketch2.addGeometry(Part.ArcOfCircle(Part.Circle(Vector(0, 0, 0), Vector(0, 0, 1), 11.7), math.radians(18.013605), math.radians(41.986395)), False)  # 61
sketch2.addGeometry(Part.LineSegment(Vector(8.696653, 7.826763, 0), Vector(6.884763, 3.97492, 0)), False)  # 62
sketch2.addConstraint([
    Sketcher.Constraint("Coincident", 0, 2, 1, 1),
    Sketcher.Constraint("Coincident", 1, 2, 2, 1),
    Sketcher.Constraint("Coincident", 2, 2, 0, 1),
    Sketcher.Constraint("Coincident", 3, 2, 4, 1),
    Sketcher.Constraint("Coincident", 4, 2, 5, 1),
    Sketcher.Constraint("Coincident", 5, 2, 3, 1),
    Sketcher.Constraint("Coincident", 9, 2, 10, 1),
    Sketcher.Constraint("Coincident", 10, 2, 11, 1),
    Sketcher.Constraint("Coincident", 11, 2, 9, 1),
    Sketcher.Constraint("Coincident", 15, 2, 16, 1),
    Sketcher.Constraint("Coincident", 16, 2, 17, 1),
    Sketcher.Constraint("Coincident", 17, 2, 15, 1),
    Sketcher.Constraint("Coincident", 18, 2, 19, 1),
    Sketcher.Constraint("Coincident", 19, 2, 20, 1),
    Sketcher.Constraint("Coincident", 20, 2, 18, 1),
    Sketcher.Constraint("Coincident", 21, 2, 22, 1),
    Sketcher.Constraint("Coincident", 22, 2, 23, 1),
    Sketcher.Constraint("Coincident", 23, 2, 21, 1),
    Sketcher.Constraint("Coincident", 24, 2, 25, 1),
    Sketcher.Constraint("Coincident", 25, 2, 26, 1),
    Sketcher.Constraint("Coincident", 26, 2, 24, 1),
    Sketcher.Constraint("Coincident", 33, 2, 34, 1),
    Sketcher.Constraint("Coincident", 34, 2, 35, 1),
    Sketcher.Constraint("Coincident", 35, 2, 33, 1),
    Sketcher.Constraint("Coincident", 36, 2, 37, 1),
    Sketcher.Constraint("Coincident", 37, 2, 38, 1),
    Sketcher.Constraint("Coincident", 38, 2, 36, 1),
    Sketcher.Constraint("Coincident", 39, 2, 40, 1),
    Sketcher.Constraint("Coincident", 40, 2, 41, 1),
    Sketcher.Constraint("Coincident", 41, 2, 39, 1),
    Sketcher.Constraint("Coincident", 45, 2, 46, 1),
    Sketcher.Constraint("Coincident", 46, 2, 47, 1),
    Sketcher.Constraint("Coincident", 47, 2, 45, 1),
    Sketcher.Constraint("Coincident", 48, 2, 49, 1),
    Sketcher.Constraint("Coincident", 49, 2, 50, 1),
    Sketcher.Constraint("Coincident", 50, 2, 48, 1),
    Sketcher.Constraint("Coincident", 51, 2, 52, 1),
    Sketcher.Constraint("Coincident", 52, 2, 53, 1),
    Sketcher.Constraint("Coincident", 53, 2, 51, 1),
    Sketcher.Constraint("Coincident", 54, 2, 55, 1),
    Sketcher.Constraint("Coincident", 55, 2, 56, 1),
    Sketcher.Constraint("Coincident", 56, 2, 54, 1),
    Sketcher.Constraint("Coincident", 60, 2, 61, 1),
    Sketcher.Constraint("Coincident", 61, 2, 62, 1),
    Sketcher.Constraint("Coincident", 62, 2, 60, 1),
    Sketcher.Constraint("Horizontal", 6),
    Sketcher.Constraint("Horizontal", 14),
    Sketcher.Constraint("Coincident", 1, 3, -1, 1),
    Sketcher.Constraint("Coincident", 4, 3, -1, 1),
    Sketcher.Constraint("Coincident", 10, 3, -1, 1),
    Sketcher.Constraint("Coincident", 15, 3, -1, 1),
    Sketcher.Constraint("Coincident", 19, 3, -1, 1),
    Sketcher.Constraint("Coincident", 22, 3, -1, 1),
    Sketcher.Constraint("Coincident", 25, 3, -1, 1),
    Sketcher.Constraint("Coincident", 33, 3, -1, 1),
    Sketcher.Constraint("Coincident", 36, 3, -1, 1),
    Sketcher.Constraint("Coincident", 39, 3, -1, 1),
    Sketcher.Constraint("Coincident", 46, 3, -1, 1),
    Sketcher.Constraint("Coincident", 48, 3, -1, 1),
    Sketcher.Constraint("Coincident", 51, 3, -1, 1),
    Sketcher.Constraint("Coincident", 54, 3, -1, 1),
    Sketcher.Constraint("Coincident", 61, 3, -1, 1),
    Sketcher.Constraint("Equal", 1, 4),
    Sketcher.Constraint("Equal", 4, 10),
    Sketcher.Constraint("Equal", 10, 15),
    Sketcher.Constraint("Equal", 15, 19),
    Sketcher.Constraint("Equal", 19, 22),
    Sketcher.Constraint("Equal", 22, 25),
    Sketcher.Constraint("Equal", 25, 33),
    Sketcher.Constraint("Equal", 33, 36),
    Sketcher.Constraint("Equal", 36, 39),
    Sketcher.Constraint("Equal", 39, 46),
    Sketcher.Constraint("Equal", 46, 48),
    Sketcher.Constraint("Equal", 48, 51),
    Sketcher.Constraint("Equal", 51, 54),
    Sketcher.Constraint("Equal", 54, 61),
    Sketcher.Constraint("Symmetric", 7, 2, 12, 2, -2),
    Sketcher.Constraint("Symmetric", 6, 2, 13, 2, -2),
    Sketcher.Constraint("Symmetric", 5, 2, 16, 2, -2),
    Sketcher.Constraint("Symmetric", 2, 2, 20, 2, -2),
    Sketcher.Constraint("Symmetric", 27, 2, 30, 2, -2),
    Sketcher.Constraint("Symmetric", 29, 2, 31, 2, -2),
    Sketcher.Constraint("Symmetric", 28, 2, 32, 2, -2),
    Sketcher.Constraint("Symmetric", 26, 2, 34, 2, -2),
    Sketcher.Constraint("Symmetric", 23, 2, 37, 2, -2),
    Sketcher.Constraint("Symmetric", 49, 2, 52, 2, -2),
    Sketcher.Constraint("Symmetric", 47, 2, 55, 2, -2),
    Sketcher.Constraint("Symmetric", 43, 2, 57, 2, -2),
    Sketcher.Constraint("Symmetric", 42, 2, 58, 2, -2),
    Sketcher.Constraint("Symmetric", 44, 2, 59, 2, -2),
    Sketcher.Constraint("Symmetric", 40, 2, 62, 2, -2),
    Sketcher.Constraint("PointOnObject", 11, 2, -2),
    Sketcher.Constraint("Parallel", 2, 3),
    Sketcher.Constraint("Parallel", 5, 7),
    Sketcher.Constraint("Parallel", 3, 8),
    Sketcher.Constraint("Parallel", 8, 9),
    Sketcher.Constraint("Parallel", 11, 12),
    Sketcher.Constraint("Parallel", 12, 16),
    Sketcher.Constraint("Parallel", 13, 17),
    Sketcher.Constraint("Parallel", 16, 18),
    Sketcher.Constraint("Parallel", 23, 24),
    Sketcher.Constraint("Parallel", 26, 28),
    Sketcher.Constraint("Parallel", 24, 29),
    Sketcher.Constraint("Parallel", 32, 34),
    Sketcher.Constraint("Parallel", 30, 35),
    Sketcher.Constraint("Parallel", 34, 38),
    Sketcher.Constraint("Parallel", 38, 40),
    Sketcher.Constraint("Parallel", 41, 42),
    Sketcher.Constraint("Parallel", 31, 43),
    Sketcher.Constraint("Parallel", 42, 45),
    Sketcher.Constraint("Parallel", 44, 47),
    Sketcher.Constraint("Parallel", 45, 49),
    Sketcher.Constraint("Parallel", 53, 55),
    Sketcher.Constraint("Parallel", 56, 57),
    Sketcher.Constraint("Parallel", 55, 59),
    Sketcher.Constraint("Parallel", 29, 60),
    Sketcher.Constraint("Parallel", 59, 62),
    Sketcher.Constraint("Horizontal", 2, 2, 6, 2),
    Sketcher.Constraint("Horizontal", 9, 2, 10, 2),
    Sketcher.Constraint("Horizontal", 0, 2, 19, 2),
    Sketcher.Constraint("Horizontal", 21, 2, 36, 2),
    Sketcher.Constraint("Horizontal", 50, 2, 51, 2),
    Sketcher.Constraint("Equal", 20, 21),
    Sketcher.Constraint("Equal", 18, 23),
    Sketcher.Constraint("Equal", 16, 24),
    Sketcher.Constraint("Equal", 17, 26),
    Sketcher.Constraint("Equal", 13, 28),
    Sketcher.Constraint("Equal", 12, 29),
    Sketcher.Constraint("Equal", 11, 40),
    Sketcher.Constraint("Equal", 40, 41),
    Sketcher.Constraint("Equal", 32, 42),
    Sketcher.Constraint("Equal", 31, 43),
    Sketcher.Constraint("Equal", 30, 44),
    Sketcher.Constraint("Equal", 34, 45),
    Sketcher.Constraint("Equal", 35, 47),
    Sketcher.Constraint("Equal", 38, 49),
    Sketcher.Constraint("Equal", 37, 50),
    Sketcher.Constraint("Radius", 1, Q("11.7 mm")),
    Sketcher.Constraint("Angle", 27, Q("-60 deg")),
    Sketcher.Constraint("Distance", 0, Q("2.854391 mm")),
    Sketcher.Constraint("Distance", 2, Q("2.296169 mm")),
    Sketcher.Constraint("Distance", 5, Q("3.205542 mm")),
    Sketcher.Constraint("Distance", 7, Q("2.62161 mm")),
    Sketcher.Constraint("Distance", 8, Q("3.055638 mm")),
    Sketcher.Constraint("DistanceX", 6, 2, 6, 1, Q("2.504695 mm")),
    Sketcher.Constraint("DistanceY", 0, 2, -1, 1, Q("8.724128 mm")),
    Sketcher.Constraint("DistanceY", 3, 2, -1, 1, Q("10.23032 mm")),
    Sketcher.Constraint("DistanceX", 7, 2, -1, 1, Q("2.70629 mm")),
    Sketcher.Constraint("DistanceX", 9, 2, -1, 1, Q("2.429849 mm")),
    Sketcher.Constraint("DistanceX", -1, 1, 21, 2, Q("11.45338 mm")),
    Sketcher.Constraint("DistanceY", -1, 1, 25, 2, Q("2.749458 mm")),
    Sketcher.Constraint("DistanceX", -1, 1, 29, 2, Q("7.35048 mm")),
    Sketcher.Constraint("DistanceX", 42, 2, -1, 1, Q("6.388431 mm")),
    Sketcher.Constraint("DistanceY", -1, 1, 42, 2, Q("4.799241 mm")),
    Sketcher.Constraint("DistanceY", -1, 1, 27, 2, Q("0.963793 mm")),
    Sketcher.Constraint("DistanceX", 48, 2, -1, 1, Q("5.319928 mm")),
])
pocket1 = body.newObject("PartDesign::Pocket", "Pocket")
pocket1.Profile = sketch2
pocket1.Length = 34.4
body2 = doc.addObject("PartDesign::Body", "Body001")

# Sketch on XY plane
sketch3 = body2.newObject("Sketcher::SketchObject", "Sketch002")
sketch3.AttachmentSupport = (doc.getObject("XY_Plane001"), [""])
sketch3.MapMode = "FlatFace"
sketch3.addGeometry([
    Part.Circle(Vector(0, 0, 0), Vector(0, 0, 1), 20),  # 0
    Part.LineSegment(Vector(-10.490621, -6.749583, 0), Vector(-11.090621, -5.710353, 0)),  # 1
    Part.LineSegment(Vector(-11.090621, -5.710353, 0), Vector(-7.030144, -3.366035, 0)),  # 2
    Part.ArcOfCircle(Part.Circle(Vector(-4.762436, -2.749593, 0), Vector(0, 0, 1), 2.35), math.radians(-135.207503), math.radians(195.207503)),  # 3
    Part.LineSegment(Vector(-6.430144, -4.405265, 0), Vector(-10.490621, -6.749583, 0)),  # 4
    Part.LineSegment(Vector(11.090621, -5.710353, 0), Vector(10.490621, -6.749583, 0)),  # 5
    Part.LineSegment(Vector(10.490621, -6.749583, 0), Vector(6.430144, -4.405265, 0)),  # 6
    Part.ArcOfCircle(Part.Circle(Vector(4.762436, -2.749593, 0), Vector(0, 0, 1), 2.35), math.radians(-15.207503), math.radians(315.207503)),  # 7
    Part.LineSegment(Vector(7.030144, -3.366035, 0), Vector(11.090621, -5.710353, 0)),  # 8
    Part.LineSegment(Vector(-0.6, 12.459936, 0), Vector(0.6, 12.459936, 0)),  # 9
    Part.LineSegment(Vector(0.6, 12.459936, 0), Vector(0.6, 7.7713, 0)),  # 10
    Part.ArcOfCircle(Part.Circle(Vector(0, 5.499187, 0), Vector(0, 0, 1), 2.35), math.radians(104.792497), math.radians(435.207503)),  # 11
    Part.LineSegment(Vector(-0.6, 7.7713, 0), Vector(-0.6, 12.459936, 0)),  # 12
], False)
sketch3.addConstraint([
    Sketcher.Constraint("Coincident", 1, 2, 2, 1),
    Sketcher.Constraint("Coincident", 2, 2, 3, 2),
    Sketcher.Constraint("Coincident", 3, 1, 4, 1),
    Sketcher.Constraint("Coincident", 4, 2, 1, 1),
    Sketcher.Constraint("Coincident", 5, 2, 6, 1),
    Sketcher.Constraint("Coincident", 6, 2, 7, 2),
    Sketcher.Constraint("Coincident", 7, 1, 8, 1),
    Sketcher.Constraint("Coincident", 8, 2, 5, 1),
    Sketcher.Constraint("Coincident", 9, 2, 10, 1),
    Sketcher.Constraint("Coincident", 10, 2, 11, 2),
    Sketcher.Constraint("Coincident", 11, 1, 12, 1),
    Sketcher.Constraint("Coincident", 12, 2, 9, 1),
    Sketcher.Constraint("Horizontal", 9),
    Sketcher.Constraint("Vertical", 10),
    Sketcher.Constraint("Vertical", 12),
    Sketcher.Constraint("Coincident", 0, 3, -1, 1),
    Sketcher.Constraint("Equal", 3, 7),
    Sketcher.Constraint("Equal", 7, 11),
    Sketcher.Constraint("Symmetric", 3, 3, 7, 3, -2),
    Sketcher.Constraint("Symmetric", 4, 2, 5, 2, -2),
    Sketcher.Constraint("Symmetric", 1, 2, 8, 2, -2),
    Sketcher.Constraint("Symmetric", 10, 2, 11, 1, -2),
    Sketcher.Constraint("Perpendicular", 1, 2),
    Sketcher.Constraint("Parallel", 2, 4),
    Sketcher.Constraint("Perpendicular", 5, 6),
    Sketcher.Constraint("Parallel", 6, 8),
    Sketcher.Constraint("Equal", 2, 4),
    Sketcher.Constraint("Diameter", 0, Q("40 mm")),
    Sketcher.Constraint("Angle", 1, Q("120 deg")),
    Sketcher.Constraint("Radius", 3, Q("2.35 mm")),
    Sketcher.Constraint("DistanceX", 9, 1, 9, 2, Q("1.2 mm")),
    Sketcher.Constraint("Distance", 1, Q("1.2 mm")),
    Sketcher.Constraint("DistanceY", -1, 1, 10, 2, Q("7.7713 mm")),
    Sketcher.Constraint("DistanceY", 10, 2, 10, 1, Q("4.688635 mm")),
    Sketcher.Constraint("DistanceX", 1, 2, -1, 1, Q("11.090621 mm")),
    Sketcher.Constraint("DistanceX", 3, 3, 7, 3, Q("9.524871 mm")),
    Sketcher.Constraint("DistanceY", 3, 3, 11, 3, Q("8.24878 mm")),
])
pad2 = body2.newObject("PartDesign::Pad", "Pad001")
pad2.Profile = sketch3
pad2.Length = 1

# Sketch on XY plane
sketch4 = body2.newObject("Sketcher::SketchObject", "Sketch003")
sketch4.AttachmentSupport = (doc.getObject("XY_Plane001"), [""])
sketch4.MapMode = "FlatFace"
sketch4.addGeometry([
    Part.ArcOfCircle(Part.Circle(Vector(-4.762436, -2.749593, 0), Vector(0, 0, 1), 2.35), math.radians(-135.207503), math.radians(195.207503)),  # 0
    Part.LineSegment(Vector(-7.030144, -3.366035, 0), Vector(-11.090621, -5.710353, 0)),  # 1
    Part.LineSegment(Vector(-11.090621, -5.710353, 0), Vector(-10.490621, -6.749583, 0)),  # 2
    Part.LineSegment(Vector(-10.490621, -6.749583, 0), Vector(-6.430144, -4.405265, 0)),  # 3
    Part.ArcOfCircle(Part.Circle(Vector(4.762436, -2.749593, 0), Vector(0, 0, 1), 2.35), math.radians(-15.207503), math.radians(315.207503)),  # 4
    Part.LineSegment(Vector(6.430144, -4.405265, 0), Vector(10.490621, -6.749583, 0)),  # 5
    Part.LineSegment(Vector(10.490621, -6.749583, 0), Vector(11.090621, -5.710353, 0)),  # 6
    Part.LineSegment(Vector(11.090621, -5.710353, 0), Vector(7.030144, -3.366035, 0)),  # 7
    Part.ArcOfCircle(Part.Circle(Vector(0, 5.499187, 0), Vector(0, 0, 1), 2.35), math.radians(104.792497), math.radians(435.207503)),  # 8
    Part.LineSegment(Vector(0.6, 7.7713, 0), Vector(0.6, 12.459936, 0)),  # 9
    Part.LineSegment(Vector(0.6, 12.459936, 0), Vector(-0.6, 12.459936, 0)),  # 10
    Part.LineSegment(Vector(-0.6, 12.459936, 0), Vector(-0.6, 7.7713, 0)),  # 11
], False)
sketch4.addConstraint([
    Sketcher.Constraint("Coincident", 0, 2, 1, 1),
    Sketcher.Constraint("Coincident", 1, 2, 2, 1),
    Sketcher.Constraint("Coincident", 2, 2, 3, 1),
    Sketcher.Constraint("Coincident", 3, 2, 0, 1),
    Sketcher.Constraint("Coincident", 4, 2, 5, 1),
    Sketcher.Constraint("Coincident", 5, 2, 6, 1),
    Sketcher.Constraint("Coincident", 6, 2, 7, 1),
    Sketcher.Constraint("Coincident", 7, 2, 4, 1),
    Sketcher.Constraint("Coincident", 8, 2, 9, 1),
    Sketcher.Constraint("Coincident", 9, 2, 10, 1),
    Sketcher.Constraint("Coincident", 10, 2, 11, 1),
    Sketcher.Constraint("Coincident", 11, 2, 8, 1),
    Sketcher.Constraint("Vertical", 9),
    Sketcher.Constraint("Horizontal", 10),
    Sketcher.Constraint("Vertical", 11),
    Sketcher.Constraint("Equal", 0, 4),
    Sketcher.Constraint("Equal", 4, 8),
    Sketcher.Constraint("Symmetric", 0, 3, 4, 3, -2),
    Sketcher.Constraint("Symmetric", 2, 2, 5, 2, -2),
    Sketcher.Constraint("Symmetric", 1, 2, 6, 2, -2),
    Sketcher.Constraint("Symmetric", 8, 2, 11, 2, -2),
    Sketcher.Constraint("Perpendicular", 1, 2),
    Sketcher.Constraint("Perpendicular", 2, 3),
    Sketcher.Constraint("Perpendicular", 5, 6),
    Sketcher.Constraint("Perpendicular", 6, 7),
    Sketcher.Constraint("Equal", 1, 3),
    Sketcher.Constraint("Angle", 1, Q("-150 deg")),
    Sketcher.Constraint("Radius", 0, Q("2.35 mm")),
    Sketcher.Constraint("DistanceX", 10, 2, 10, 1, Q("1.2 mm")),
    Sketcher.Constraint("Distance", 2, Q("1.2 mm")),
    Sketcher.Constraint("DistanceY", -1, 1, 8, 2, Q("7.7713 mm")),
    Sketcher.Constraint("DistanceY", 9, 1, 9, 2, Q("4.688635 mm")),
    Sketcher.Constraint("DistanceX", 1, 2, -1, 1, Q("11.090621 mm")),
    Sketcher.Constraint("DistanceX", 0, 3, 4, 3, Q("9.524871 mm")),
    Sketcher.Constraint("DistanceY", 0, 3, 8, 3, Q("8.24878 mm")),
])
pad3 = body2.newObject("PartDesign::Pad", "Pad002")
pad3.Profile = sketch4
pad3.Length = 37

doc.recompute()
